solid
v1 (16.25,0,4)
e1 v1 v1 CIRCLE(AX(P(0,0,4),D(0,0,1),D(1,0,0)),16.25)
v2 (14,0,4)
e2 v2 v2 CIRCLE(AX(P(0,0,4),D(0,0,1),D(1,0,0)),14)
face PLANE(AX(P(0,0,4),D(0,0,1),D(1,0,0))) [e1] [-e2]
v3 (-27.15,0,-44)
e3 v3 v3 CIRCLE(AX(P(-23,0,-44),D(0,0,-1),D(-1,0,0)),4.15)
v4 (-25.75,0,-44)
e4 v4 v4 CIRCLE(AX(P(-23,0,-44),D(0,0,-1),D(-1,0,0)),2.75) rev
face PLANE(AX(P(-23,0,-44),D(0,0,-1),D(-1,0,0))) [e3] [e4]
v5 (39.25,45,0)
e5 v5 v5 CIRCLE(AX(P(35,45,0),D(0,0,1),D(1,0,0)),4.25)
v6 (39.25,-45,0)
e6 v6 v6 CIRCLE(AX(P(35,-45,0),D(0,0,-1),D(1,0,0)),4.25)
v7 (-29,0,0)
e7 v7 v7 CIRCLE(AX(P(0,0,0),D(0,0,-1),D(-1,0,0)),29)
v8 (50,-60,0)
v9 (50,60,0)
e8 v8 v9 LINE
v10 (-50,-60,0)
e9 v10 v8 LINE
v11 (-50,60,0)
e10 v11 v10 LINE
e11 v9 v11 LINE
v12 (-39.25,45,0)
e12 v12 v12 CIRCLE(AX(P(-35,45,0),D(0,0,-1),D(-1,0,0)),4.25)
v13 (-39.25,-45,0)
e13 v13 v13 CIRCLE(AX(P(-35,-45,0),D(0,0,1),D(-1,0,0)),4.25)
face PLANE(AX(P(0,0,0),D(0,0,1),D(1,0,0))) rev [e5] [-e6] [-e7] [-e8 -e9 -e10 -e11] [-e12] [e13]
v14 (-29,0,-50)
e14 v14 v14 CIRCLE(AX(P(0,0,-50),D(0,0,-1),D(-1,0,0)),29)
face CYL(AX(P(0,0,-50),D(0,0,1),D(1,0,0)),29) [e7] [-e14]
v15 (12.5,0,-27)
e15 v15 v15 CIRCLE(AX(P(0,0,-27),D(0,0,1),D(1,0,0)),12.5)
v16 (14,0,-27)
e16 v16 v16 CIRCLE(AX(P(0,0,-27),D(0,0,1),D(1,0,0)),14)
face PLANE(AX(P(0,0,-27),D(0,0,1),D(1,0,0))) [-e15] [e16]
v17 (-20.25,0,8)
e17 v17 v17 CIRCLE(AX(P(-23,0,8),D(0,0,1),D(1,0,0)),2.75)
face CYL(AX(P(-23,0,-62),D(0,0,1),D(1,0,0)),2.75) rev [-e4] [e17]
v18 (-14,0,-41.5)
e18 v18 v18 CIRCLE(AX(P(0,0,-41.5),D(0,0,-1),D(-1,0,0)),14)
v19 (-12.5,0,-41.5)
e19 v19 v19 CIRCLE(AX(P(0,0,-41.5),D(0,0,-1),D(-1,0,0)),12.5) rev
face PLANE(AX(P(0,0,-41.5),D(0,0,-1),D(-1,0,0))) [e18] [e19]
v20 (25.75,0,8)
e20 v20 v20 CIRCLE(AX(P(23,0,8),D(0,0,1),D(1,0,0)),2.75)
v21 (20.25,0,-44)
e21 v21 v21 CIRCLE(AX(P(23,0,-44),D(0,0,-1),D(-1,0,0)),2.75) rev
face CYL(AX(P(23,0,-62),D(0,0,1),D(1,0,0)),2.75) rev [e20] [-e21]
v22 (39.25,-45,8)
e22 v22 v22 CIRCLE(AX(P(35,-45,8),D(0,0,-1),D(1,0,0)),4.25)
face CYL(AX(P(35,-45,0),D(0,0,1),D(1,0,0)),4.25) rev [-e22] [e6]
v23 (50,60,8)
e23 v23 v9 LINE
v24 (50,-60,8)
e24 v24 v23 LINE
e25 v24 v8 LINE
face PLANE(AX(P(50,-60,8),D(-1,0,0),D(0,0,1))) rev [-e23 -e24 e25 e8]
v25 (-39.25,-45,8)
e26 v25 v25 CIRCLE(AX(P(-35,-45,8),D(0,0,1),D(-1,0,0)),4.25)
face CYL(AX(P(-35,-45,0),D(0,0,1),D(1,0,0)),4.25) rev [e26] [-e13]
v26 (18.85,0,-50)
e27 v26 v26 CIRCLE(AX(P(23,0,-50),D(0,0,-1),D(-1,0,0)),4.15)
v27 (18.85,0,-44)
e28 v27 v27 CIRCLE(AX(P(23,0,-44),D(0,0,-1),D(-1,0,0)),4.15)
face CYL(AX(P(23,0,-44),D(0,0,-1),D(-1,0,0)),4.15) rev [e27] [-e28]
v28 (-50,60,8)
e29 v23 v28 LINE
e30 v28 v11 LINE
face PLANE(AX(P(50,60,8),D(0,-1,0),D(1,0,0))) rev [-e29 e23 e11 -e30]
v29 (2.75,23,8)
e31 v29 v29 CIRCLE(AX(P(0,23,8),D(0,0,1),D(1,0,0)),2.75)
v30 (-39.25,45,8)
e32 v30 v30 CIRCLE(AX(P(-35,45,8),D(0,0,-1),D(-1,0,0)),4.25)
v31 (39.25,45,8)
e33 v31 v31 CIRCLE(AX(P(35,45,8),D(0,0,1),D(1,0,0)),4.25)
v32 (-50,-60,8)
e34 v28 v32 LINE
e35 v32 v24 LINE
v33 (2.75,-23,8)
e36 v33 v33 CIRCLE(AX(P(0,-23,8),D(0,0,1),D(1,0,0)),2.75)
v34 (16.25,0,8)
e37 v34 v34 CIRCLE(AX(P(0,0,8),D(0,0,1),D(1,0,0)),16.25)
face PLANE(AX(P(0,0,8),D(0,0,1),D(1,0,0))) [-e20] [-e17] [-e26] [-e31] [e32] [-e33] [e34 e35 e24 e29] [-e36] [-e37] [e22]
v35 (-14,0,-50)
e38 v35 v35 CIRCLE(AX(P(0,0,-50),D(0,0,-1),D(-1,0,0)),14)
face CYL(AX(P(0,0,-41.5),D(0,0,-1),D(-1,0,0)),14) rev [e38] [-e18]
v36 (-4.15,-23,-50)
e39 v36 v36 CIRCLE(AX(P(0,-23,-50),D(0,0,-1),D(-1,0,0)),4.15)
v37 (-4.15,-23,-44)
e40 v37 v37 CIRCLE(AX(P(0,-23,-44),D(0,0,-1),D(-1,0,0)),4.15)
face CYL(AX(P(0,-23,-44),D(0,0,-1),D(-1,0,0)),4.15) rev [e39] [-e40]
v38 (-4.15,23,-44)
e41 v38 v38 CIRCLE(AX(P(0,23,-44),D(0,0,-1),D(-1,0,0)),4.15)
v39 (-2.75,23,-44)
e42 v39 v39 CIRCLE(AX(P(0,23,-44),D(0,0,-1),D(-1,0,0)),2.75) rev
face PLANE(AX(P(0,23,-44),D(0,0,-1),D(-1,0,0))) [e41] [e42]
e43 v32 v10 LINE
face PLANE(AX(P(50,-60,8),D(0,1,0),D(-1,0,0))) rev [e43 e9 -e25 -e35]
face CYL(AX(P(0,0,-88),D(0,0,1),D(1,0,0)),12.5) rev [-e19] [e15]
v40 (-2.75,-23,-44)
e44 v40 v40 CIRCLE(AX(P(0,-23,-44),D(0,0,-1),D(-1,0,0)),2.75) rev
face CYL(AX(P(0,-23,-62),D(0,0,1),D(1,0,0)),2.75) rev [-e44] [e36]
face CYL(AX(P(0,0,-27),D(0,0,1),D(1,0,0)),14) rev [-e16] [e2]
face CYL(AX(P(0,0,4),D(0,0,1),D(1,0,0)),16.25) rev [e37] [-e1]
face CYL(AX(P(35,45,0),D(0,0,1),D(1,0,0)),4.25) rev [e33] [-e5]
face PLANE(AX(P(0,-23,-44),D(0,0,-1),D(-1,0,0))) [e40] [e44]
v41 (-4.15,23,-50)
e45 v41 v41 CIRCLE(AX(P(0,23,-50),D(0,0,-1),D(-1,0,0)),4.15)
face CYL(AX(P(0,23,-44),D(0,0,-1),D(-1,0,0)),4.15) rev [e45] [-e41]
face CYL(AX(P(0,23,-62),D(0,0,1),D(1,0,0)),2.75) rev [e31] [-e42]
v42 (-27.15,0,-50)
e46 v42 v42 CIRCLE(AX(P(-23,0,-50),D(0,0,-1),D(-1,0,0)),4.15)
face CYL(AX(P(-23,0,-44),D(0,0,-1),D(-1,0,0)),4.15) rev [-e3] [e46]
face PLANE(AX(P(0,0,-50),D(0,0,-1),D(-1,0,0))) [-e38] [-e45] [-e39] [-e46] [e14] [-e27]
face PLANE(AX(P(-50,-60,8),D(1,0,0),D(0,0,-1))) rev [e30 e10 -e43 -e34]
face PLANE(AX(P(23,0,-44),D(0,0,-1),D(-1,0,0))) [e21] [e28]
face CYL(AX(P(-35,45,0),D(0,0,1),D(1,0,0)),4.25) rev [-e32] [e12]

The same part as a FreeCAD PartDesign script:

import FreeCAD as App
import Part
import Sketcher

V = App.Vector


def add_polygon(sketch, points):
    """Adds a closed chain of lines whose ends are joined by coincident constraints."""
    first, n = sketch.GeometryCount, len(points)
    for a, b in zip(points, points[1:] + points[:1]):
        sketch.addGeometry(Part.LineSegment(App.Vector(*a, 0), App.Vector(*b, 0)), False)
    for i in range(n):
        sketch.addConstraint(Sketcher.Constraint("Coincident", first + i, 2, first + (i + 1) % n, 1))

doc = App.newDocument("Part")
params = doc.addObject("Spreadsheet::Sheet", "Params")
for row, (alias, value) in enumerate([
    ("sketch1_width", "100 mm"),
    ("sketch1_height", "120 mm"),
    ("pad1_length", "8 mm"),
    ("sketch2_diameter", "8.5 mm"),
    ("pocket1_length", "8 mm"),
    ("sketch3_diameter", "8.5 mm"),
    ("pocket2_length", "8 mm"),
    ("sketch4_diameter", "32.5 mm"),
    ("pocket3_length", "4 mm"),
    ("sketch5_diameter", "58 mm"),
    ("pad2_length", "50 mm"),
    ("sketch6_diameter", "5.5 mm"),
    ("pocket4_length", "70 mm"),
    ("sketch7_diameter", "28 mm"),
    ("pocket5_length", "31 mm"),
    ("sketch8_diameter", "25 mm"),
    ("pocket6_length", "61 mm"),
    ("sketch9_diameter", "8.3 mm"),
    ("pocket7_length", "6 mm"),
    ("sketch10_diameter", "28 mm"),
    ("pocket8_length", "8.5 mm"),
], start=1):
    params.set(f"A{row}", alias)
    params.set(f"B{row}", "=" + value)
    params.setAlias(f"B{row}", alias)

body = doc.addObject("PartDesign::Body", "Body")

# Sketch on XY plane
sketch1 = doc.addObject("Sketcher::SketchObject", "Sketch")
body.addObject(sketch1)
sketch1.AttachmentSupport = (doc.XY_Plane, [""])
sketch1.MapMode = "FlatFace"
add_polygon(sketch1, [(-50, 60), (-50, -60), (50, -60), (50, 60)])  # lines 0-3
sketch1.addConstraint([
    Sketcher.Constraint("Vertical", 0),
    Sketcher.Constraint("Horizontal", 1),
    Sketcher.Constraint("Vertical", 2),
    Sketcher.Constraint("Horizontal", 3),
    Sketcher.Constraint("Symmetric", 0, 2, 2, 2, -1, 1),
    Sketcher.Constraint("DistanceX", 1, 1, 1, 2, 100.0),
    Sketcher.Constraint("DistanceY", 0, 2, 0, 1, 120.0),
])
sketch1.setExpression("Constraints[9]", "Params.sketch1_width")
sketch1.setExpression("Constraints[10]", "Params.sketch1_height")
pad1 = doc.addObject("PartDesign::Pad", "Pad")
body.addObject(pad1)
pad1.Profile = sketch1
pad1.setExpression("Length", "Params.pad1_length")

# Sketch on XY plane
sketch2 = doc.addObject("Sketcher::SketchObject", "Sketch001")
body.addObject(sketch2)
sketch2.AttachmentSupport = (doc.XY_Plane, [""])
sketch2.MapMode = "FlatFace"
sketch2.AttachmentOffset = App.Placement(V(0, 0, 8), App.Rotation())
sketch2.addGeometry(Part.Circle(V(35, 45, 0), V(0, 0, 1), 4.2), False)
sketch2.addConstraint([
    Sketcher.Constraint("Diameter", 0, 8.5),
    Sketcher.Constraint("DistanceX", -1, 1, 0, 3, 35.0),
    Sketcher.Constraint("DistanceY", -1, 1, 0, 3, 45.0),
])
sketch2.setExpression("Constraints[0]", "Params.sketch2_diameter")
pocket1 = doc.addObject("PartDesign::Pocket", "Pocket")
body.addObject(pocket1)
pocket1.Profile = sketch2
pocket1.setExpression("Length", "Params.pocket1_length")
doc.recompute()

mirrored = doc.addObject("PartDesign::Mirrored", "Mirrored")
body.addObject(mirrored)
mirrored.Originals = [pocket1]
mirrored.MirrorPlane = (doc.YZ_Plane, [""])
body.Tip = mirrored
doc.recompute()

mirrored2 = doc.addObject("PartDesign::Mirrored", "Mirrored001")
body.addObject(mirrored2)
mirrored2.Originals = [pocket1]
mirrored2.MirrorPlane = (doc.XZ_Plane, [""])
body.Tip = mirrored2

# Sketch on XY plane
sketch3 = doc.addObject("Sketcher::SketchObject", "Sketch002")
body.addObject(sketch3)
sketch3.AttachmentSupport = (doc.XY_Plane, [""])
sketch3.MapMode = "FlatFace"
sketch3.AttachmentOffset = App.Placement(V(0, 0, 8), App.Rotation())
sketch3.addGeometry(Part.Circle(V(-35, -45, 0), V(0, 0, 1), 4.2), False)
sketch3.addConstraint([
    Sketcher.Constraint("Diameter", 0, 8.5),
    Sketcher.Constraint("DistanceX", 0, 3, -1, 1, 35.0),
    Sketcher.Constraint("DistanceY", 0, 3, -1, 1, 45.0),
])
sketch3.setExpression("Constraints[0]", "Params.sketch3_diameter")
pocket2 = doc.addObject("PartDesign::Pocket", "Pocket001")
body.addObject(pocket2)
pocket2.Profile = sketch3
pocket2.setExpression("Length", "Params.pocket2_length")

# Sketch on XY plane
sketch4 = doc.addObject("Sketcher::SketchObject", "Sketch003")
body.addObject(sketch4)
sketch4.AttachmentSupport = (doc.XY_Plane, [""])
sketch4.MapMode = "FlatFace"
sketch4.AttachmentOffset = App.Placement(V(0, 0, 8), App.Rotation())
sketch4.addGeometry(Part.Circle(V(0, 0, 0), V(0, 0, 1), 16), False)
sketch4.addConstraint([
    Sketcher.Constraint("Coincident", 0, 3, -1, 1),
    Sketcher.Constraint("Diameter", 0, 32.5),
])
sketch4.setExpression("Constraints[1]", "Params.sketch4_diameter")
pocket3 = doc.addObject("PartDesign::Pocket", "Pocket002")
body.addObject(pocket3)
pocket3.Profile = sketch4
pocket3.setExpression("Length", "Params.pocket3_length")

# Sketch on XY plane
sketch5 = doc.addObject("Sketcher::SketchObject", "Sketch004")
body.addObject(sketch5)
sketch5.AttachmentSupport = (doc.XY_Plane, [""])
sketch5.MapMode = "FlatFace"
sketch5.addGeometry(Part.Circle(V(0, 0, 0), V(0, 0, 1), 29), False)
sketch5.addConstraint([
    Sketcher.Constraint("Coincident", 0, 3, -1, 1),
    Sketcher.Constraint("Diameter", 0, 58.0),
])
sketch5.setExpression("Constraints[1]", "Params.sketch5_diameter")
pad2 = doc.addObject("PartDesign::Pad", "Pad001")
body.addObject(pad2)
pad2.Profile = sketch5
pad2.setExpression("Length", "Params.pad2_length")
pad2.Reversed = True

# Sketch on XY plane
sketch6 = doc.addObject("Sketcher::SketchObject", "Sketch005")
body.addObject(sketch6)
sketch6.AttachmentSupport = (doc.XY_Plane, [""])
sketch6.MapMode = "FlatFace"
sketch6.AttachmentOffset = App.Placement(V(0, 0, 8), App.Rotation())
sketch6.addGeometry([
    Part.Circle(V(0, 23, 0), V(0, 0, 1), 2.8),
    Part.Circle(V(23, 0, 0), V(0, 0, 1), 2.8),
    Part.Circle(V(0, -23, 0), V(0, 0, 1), 2.8),
    Part.Circle(V(-23, 0, 0), V(0, 0, 1), 2.8),
], False)
sketch6.addConstraint([
    Sketcher.Constraint("Equal", 0, 1),
    Sketcher.Constraint("Equal", 1, 2),
    Sketcher.Constraint("Equal", 2, 3),
    Sketcher.Constraint("Symmetric", 0, 3, 2, 3, -1, 1),
    Sketcher.Constraint("Symmetric", 1, 3, 3, 3, -1, 1),
    Sketcher.Constraint("PointOnObject", 0, 3, -2),
    Sketcher.Constraint("PointOnObject", 1, 3, -1),
    Sketcher.Constraint("Diameter", 0, 5.5),
    Sketcher.Constraint("DistanceY", -1, 1, 0, 3, 23.0),
    Sketcher.Constraint("DistanceX", -1, 1, 1, 3, 23.0),
])
sketch6.setExpression("Constraints[7]", "Params.sketch6_diameter")
pocket4 = doc.addObject("PartDesign::Pocket", "Pocket003")
body.addObject(pocket4)
pocket4.Profile = sketch6
pocket4.setExpression("Length", "Params.pocket4_length")

# Sketch on XY plane
sketch7 = doc.addObject("Sketcher::SketchObject", "Sketch006")
body.addObject(sketch7)
sketch7.AttachmentSupport = (doc.XY_Plane, [""])
sketch7.MapMode = "FlatFace"
sketch7.AttachmentOffset = App.Placement(V(0, 0, 4), App.Rotation())
sketch7.addGeometry(Part.Circle(V(0, 0, 0), V(0, 0, 1), 14), False)
sketch7.addConstraint([
    Sketcher.Constraint("Coincident", 0, 3, -1, 1),
    Sketcher.Constraint("Diameter", 0, 28.0),
])
sketch7.setExpression("Constraints[1]", "Params.sketch7_diameter")
pocket5 = doc.addObject("PartDesign::Pocket", "Pocket004")
body.addObject(pocket5)
pocket5.Profile = sketch7
pocket5.setExpression("Length", "Params.pocket5_length")

# Sketch on XY plane
sketch8 = doc.addObject("Sketcher::SketchObject", "Sketch007")
body.addObject(sketch8)
sketch8.AttachmentSupport = (doc.XY_Plane, [""])
sketch8.MapMode = "FlatFace"
sketch8.AttachmentOffset = App.Placement(V(0, 0, -27), App.Rotation())
sketch8.addGeometry(Part.Circle(V(0, 0, 0), V(0, 0, 1), 12), False)
sketch8.addConstraint([
    Sketcher.Constraint("Coincident", 0, 3, -1, 1),
    Sketcher.Constraint("Diameter", 0, 25.0),
])
sketch8.setExpression("Constraints[1]", "Params.sketch8_diameter")
pocket6 = doc.addObject("PartDesign::Pocket", "Pocket005")
body.addObject(pocket6)
pocket6.Profile = sketch8
pocket6.setExpression("Length", "Params.pocket6_length")

# Sketch on XY plane
sketch9 = doc.addObject("Sketcher::SketchObject", "Sketch008")
body.addObject(sketch9)
sketch9.AttachmentSupport = (doc.XY_Plane, [""])
sketch9.MapMode = "FlatFace"
sketch9.AttachmentOffset = App.Placement(V(0, 0, -50), App.Rotation())
sketch9.addGeometry([
    Part.Circle(V(0, 23, 0), V(0, 0, 1), 4.2),
    Part.Circle(V(-23, 0, 0), V(0, 0, 1), 4.2),
    Part.Circle(V(0, -23, 0), V(0, 0, 1), 4.2),
    Part.Circle(V(23, 0, 0), V(0, 0, 1), 4.2),
], False)
sketch9.addConstraint([
    Sketcher.Constraint("Equal", 0, 1),
    Sketcher.Constraint("Equal", 1, 2),
    Sketcher.Constraint("Equal", 2, 3),
    Sketcher.Constraint("Symmetric", 0, 3, 2, 3, -1, 1),
    Sketcher.Constraint("Symmetric", 1, 3, 3, 3, -1, 1),
    Sketcher.Constraint("PointOnObject", 0, 3, -2),
    Sketcher.Constraint("PointOnObject", 1, 3, -1),
    Sketcher.Constraint("Diameter", 0, 8.3),
    Sketcher.Constraint("DistanceY", -1, 1, 0, 3, 23.0),
    Sketcher.Constraint("DistanceX", 1, 3, -1, 1, 23.0),
])
sketch9.setExpression("Constraints[7]", "Params.sketch9_diameter")
pocket7 = doc.addObject("PartDesign::Pocket", "Pocket006")
body.addObject(pocket7)
pocket7.Profile = sketch9
pocket7.setExpression("Length", "Params.pocket7_length")
pocket7.Reversed = True

# Sketch on XY plane
sketch10 = doc.addObject("Sketcher::SketchObject", "Sketch009")
body.addObject(sketch10)
sketch10.AttachmentSupport = (doc.XY_Plane, [""])
sketch10.MapMode = "FlatFace"
sketch10.AttachmentOffset = App.Placement(V(0, 0, -41.5), App.Rotation())
sketch10.addGeometry(Part.Circle(V(0, 0, 0), V(0, 0, 1), 14), False)
sketch10.addConstraint([
    Sketcher.Constraint("Coincident", 0, 3, -1, 1),
    Sketcher.Constraint("Diameter", 0, 28.0),
])
sketch10.setExpression("Constraints[1]", "Params.sketch10_diameter")
pocket8 = doc.addObject("PartDesign::Pocket", "Pocket007")
body.addObject(pocket8)
pocket8.Profile = sketch10
pocket8.setExpression("Length", "Params.pocket8_length")

doc.recompute()
